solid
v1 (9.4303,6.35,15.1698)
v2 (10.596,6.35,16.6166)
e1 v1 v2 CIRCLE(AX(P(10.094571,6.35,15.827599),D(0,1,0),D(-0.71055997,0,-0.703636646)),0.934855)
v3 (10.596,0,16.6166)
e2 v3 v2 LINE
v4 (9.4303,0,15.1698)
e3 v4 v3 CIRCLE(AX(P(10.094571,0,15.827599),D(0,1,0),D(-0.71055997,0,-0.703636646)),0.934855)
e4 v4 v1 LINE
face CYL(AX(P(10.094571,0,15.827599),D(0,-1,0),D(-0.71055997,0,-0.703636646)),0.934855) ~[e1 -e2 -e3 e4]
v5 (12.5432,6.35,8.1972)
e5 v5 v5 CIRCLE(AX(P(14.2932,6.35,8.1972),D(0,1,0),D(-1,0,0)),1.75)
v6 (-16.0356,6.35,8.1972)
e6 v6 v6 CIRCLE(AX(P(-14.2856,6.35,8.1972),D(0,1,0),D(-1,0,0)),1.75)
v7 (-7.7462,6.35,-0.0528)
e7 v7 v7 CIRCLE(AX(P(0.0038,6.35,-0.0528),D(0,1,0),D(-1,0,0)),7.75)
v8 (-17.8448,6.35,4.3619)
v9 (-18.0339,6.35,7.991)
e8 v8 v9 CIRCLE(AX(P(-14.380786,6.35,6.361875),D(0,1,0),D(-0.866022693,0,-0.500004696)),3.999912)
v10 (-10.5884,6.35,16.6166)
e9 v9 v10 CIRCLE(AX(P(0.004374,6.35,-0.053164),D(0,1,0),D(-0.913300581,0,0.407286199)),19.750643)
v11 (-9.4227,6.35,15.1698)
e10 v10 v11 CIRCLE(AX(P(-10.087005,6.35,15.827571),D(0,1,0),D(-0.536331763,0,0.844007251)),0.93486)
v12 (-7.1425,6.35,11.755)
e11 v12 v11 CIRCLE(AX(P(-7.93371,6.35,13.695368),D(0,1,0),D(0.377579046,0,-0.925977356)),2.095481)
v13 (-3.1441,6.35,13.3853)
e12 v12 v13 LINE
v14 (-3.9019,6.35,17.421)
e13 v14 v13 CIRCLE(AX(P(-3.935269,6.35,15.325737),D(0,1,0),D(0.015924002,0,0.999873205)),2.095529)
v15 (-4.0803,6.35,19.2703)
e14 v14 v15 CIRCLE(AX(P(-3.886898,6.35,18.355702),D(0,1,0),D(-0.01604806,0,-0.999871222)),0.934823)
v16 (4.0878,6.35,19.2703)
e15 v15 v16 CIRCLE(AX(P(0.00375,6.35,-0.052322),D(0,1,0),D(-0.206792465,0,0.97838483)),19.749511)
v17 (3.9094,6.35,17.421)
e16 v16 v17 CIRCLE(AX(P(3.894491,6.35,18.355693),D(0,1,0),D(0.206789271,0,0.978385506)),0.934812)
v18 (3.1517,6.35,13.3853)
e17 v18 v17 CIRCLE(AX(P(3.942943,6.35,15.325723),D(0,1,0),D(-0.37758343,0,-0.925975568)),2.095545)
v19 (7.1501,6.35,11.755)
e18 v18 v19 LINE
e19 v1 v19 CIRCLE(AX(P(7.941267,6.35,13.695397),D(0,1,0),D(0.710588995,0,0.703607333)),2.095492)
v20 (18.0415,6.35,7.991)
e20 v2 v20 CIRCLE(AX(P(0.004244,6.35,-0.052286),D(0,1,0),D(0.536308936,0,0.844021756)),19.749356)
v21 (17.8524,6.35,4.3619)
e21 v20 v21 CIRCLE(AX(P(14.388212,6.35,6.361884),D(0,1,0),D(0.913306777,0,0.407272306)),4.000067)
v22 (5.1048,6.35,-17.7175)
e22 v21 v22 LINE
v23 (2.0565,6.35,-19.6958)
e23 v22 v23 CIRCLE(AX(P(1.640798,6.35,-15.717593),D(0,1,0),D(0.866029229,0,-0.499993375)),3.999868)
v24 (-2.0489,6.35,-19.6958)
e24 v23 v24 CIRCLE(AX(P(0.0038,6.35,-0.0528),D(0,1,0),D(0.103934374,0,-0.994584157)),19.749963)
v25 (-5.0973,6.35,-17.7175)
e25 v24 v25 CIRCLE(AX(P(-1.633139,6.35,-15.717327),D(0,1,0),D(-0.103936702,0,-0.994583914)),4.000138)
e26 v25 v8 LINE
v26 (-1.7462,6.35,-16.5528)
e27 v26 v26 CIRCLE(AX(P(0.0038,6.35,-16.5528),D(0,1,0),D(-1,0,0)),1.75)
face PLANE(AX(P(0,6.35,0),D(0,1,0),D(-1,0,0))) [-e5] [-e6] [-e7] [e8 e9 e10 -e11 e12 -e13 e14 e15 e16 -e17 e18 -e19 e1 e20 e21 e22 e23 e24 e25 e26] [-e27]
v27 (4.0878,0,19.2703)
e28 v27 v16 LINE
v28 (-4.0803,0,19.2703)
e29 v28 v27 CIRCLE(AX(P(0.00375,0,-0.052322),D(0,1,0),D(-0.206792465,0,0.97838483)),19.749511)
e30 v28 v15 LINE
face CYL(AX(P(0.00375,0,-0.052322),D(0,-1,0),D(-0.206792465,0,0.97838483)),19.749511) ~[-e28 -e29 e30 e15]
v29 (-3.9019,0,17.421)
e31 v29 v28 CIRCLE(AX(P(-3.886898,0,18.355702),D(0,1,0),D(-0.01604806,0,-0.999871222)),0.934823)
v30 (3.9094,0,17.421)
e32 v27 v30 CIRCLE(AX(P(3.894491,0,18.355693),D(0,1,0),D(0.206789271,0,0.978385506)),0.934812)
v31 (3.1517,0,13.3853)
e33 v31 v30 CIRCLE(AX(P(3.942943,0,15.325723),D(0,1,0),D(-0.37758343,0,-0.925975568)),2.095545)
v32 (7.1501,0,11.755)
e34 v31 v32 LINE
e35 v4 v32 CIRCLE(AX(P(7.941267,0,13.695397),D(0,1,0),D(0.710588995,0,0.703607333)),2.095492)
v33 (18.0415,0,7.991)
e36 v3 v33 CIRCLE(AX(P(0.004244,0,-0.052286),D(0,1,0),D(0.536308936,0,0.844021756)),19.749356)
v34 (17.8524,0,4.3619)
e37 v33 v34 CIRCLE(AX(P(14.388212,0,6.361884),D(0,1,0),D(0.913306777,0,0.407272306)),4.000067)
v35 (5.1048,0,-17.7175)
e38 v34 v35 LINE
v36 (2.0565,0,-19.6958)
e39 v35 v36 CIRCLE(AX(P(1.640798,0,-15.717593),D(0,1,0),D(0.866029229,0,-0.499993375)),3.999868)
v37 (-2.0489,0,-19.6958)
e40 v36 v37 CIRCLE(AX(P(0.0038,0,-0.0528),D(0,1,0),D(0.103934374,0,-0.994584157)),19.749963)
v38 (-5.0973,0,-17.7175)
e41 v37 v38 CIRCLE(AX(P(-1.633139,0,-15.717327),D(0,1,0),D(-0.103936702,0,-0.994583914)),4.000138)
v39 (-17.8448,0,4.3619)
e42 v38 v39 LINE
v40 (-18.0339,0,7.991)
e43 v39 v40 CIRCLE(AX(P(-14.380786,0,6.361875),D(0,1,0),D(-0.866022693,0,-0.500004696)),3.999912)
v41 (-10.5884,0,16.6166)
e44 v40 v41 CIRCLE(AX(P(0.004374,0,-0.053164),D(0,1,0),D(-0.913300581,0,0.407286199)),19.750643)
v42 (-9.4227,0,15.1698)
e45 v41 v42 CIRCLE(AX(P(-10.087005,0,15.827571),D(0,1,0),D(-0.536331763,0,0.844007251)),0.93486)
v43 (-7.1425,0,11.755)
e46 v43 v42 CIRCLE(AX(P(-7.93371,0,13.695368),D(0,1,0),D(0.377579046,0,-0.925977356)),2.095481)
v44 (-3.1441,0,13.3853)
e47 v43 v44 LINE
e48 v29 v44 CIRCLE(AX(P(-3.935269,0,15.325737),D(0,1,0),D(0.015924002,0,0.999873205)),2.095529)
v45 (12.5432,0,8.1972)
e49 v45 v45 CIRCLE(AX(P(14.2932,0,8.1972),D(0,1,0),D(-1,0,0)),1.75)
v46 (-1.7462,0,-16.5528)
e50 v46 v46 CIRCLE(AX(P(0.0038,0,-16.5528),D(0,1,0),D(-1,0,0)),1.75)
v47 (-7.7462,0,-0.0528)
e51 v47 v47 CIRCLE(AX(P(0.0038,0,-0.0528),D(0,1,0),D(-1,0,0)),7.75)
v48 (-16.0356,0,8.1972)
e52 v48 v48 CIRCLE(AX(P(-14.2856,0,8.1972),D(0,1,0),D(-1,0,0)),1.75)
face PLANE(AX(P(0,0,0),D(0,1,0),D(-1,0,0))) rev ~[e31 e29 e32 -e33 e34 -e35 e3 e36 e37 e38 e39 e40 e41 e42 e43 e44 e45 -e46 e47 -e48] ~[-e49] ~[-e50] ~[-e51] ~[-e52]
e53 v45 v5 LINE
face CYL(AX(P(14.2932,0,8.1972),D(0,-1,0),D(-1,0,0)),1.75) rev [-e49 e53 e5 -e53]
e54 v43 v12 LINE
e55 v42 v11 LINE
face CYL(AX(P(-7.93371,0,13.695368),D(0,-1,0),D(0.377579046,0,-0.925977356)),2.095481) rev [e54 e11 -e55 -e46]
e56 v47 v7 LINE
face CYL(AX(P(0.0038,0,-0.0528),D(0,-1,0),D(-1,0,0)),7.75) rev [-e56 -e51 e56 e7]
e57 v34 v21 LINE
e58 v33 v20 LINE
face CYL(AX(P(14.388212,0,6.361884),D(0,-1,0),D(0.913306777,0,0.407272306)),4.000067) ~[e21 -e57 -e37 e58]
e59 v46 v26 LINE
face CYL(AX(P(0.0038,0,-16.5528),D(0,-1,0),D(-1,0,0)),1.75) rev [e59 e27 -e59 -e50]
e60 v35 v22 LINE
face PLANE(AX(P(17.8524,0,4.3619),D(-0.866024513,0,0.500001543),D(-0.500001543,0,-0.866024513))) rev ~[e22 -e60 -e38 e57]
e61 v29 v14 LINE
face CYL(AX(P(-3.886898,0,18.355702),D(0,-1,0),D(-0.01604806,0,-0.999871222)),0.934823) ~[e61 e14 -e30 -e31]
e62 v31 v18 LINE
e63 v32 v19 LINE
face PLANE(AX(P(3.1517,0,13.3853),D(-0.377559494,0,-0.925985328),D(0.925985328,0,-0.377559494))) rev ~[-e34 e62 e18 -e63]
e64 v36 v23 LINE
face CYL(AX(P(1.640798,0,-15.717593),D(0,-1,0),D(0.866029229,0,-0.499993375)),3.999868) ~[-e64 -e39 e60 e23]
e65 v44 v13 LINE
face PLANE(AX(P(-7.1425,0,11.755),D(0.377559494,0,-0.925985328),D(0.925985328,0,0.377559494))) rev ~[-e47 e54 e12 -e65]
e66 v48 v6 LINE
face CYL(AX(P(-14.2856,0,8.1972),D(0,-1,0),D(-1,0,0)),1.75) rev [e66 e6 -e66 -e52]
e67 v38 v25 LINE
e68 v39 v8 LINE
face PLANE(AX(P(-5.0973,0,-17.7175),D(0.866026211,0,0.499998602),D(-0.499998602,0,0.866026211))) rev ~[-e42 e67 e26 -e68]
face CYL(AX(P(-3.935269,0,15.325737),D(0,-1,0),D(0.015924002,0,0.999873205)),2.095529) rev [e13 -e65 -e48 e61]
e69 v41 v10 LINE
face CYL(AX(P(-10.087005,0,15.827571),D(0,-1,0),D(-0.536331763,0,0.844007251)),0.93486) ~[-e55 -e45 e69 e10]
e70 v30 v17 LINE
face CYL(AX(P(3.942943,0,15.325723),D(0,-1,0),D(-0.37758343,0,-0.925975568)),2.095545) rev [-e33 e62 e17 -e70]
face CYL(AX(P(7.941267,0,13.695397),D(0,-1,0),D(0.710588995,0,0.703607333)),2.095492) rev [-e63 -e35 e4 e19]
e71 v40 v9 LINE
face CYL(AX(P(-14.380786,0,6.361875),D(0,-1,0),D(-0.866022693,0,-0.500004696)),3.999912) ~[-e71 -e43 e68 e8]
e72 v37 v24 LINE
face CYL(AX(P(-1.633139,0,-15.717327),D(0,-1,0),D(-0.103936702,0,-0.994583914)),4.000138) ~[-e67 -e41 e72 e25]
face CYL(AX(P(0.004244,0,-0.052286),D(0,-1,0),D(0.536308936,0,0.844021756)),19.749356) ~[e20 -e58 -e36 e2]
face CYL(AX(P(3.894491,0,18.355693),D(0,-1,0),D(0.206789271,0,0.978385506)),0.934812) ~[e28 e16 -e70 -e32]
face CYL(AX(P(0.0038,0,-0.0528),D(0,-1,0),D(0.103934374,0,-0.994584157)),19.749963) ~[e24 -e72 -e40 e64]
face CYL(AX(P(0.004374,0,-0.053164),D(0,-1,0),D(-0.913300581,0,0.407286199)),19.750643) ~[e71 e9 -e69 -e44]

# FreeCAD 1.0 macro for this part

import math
import FreeCAD as App
import Part
import Sketcher
from FreeCAD import Vector
Q = App.Units.Quantity

doc = App.newDocument("Part")
body = doc.addObject("PartDesign::Body", "Body")

# Sketch on XZ plane
sketch1 = body.newObject("Sketcher::SketchObject", "Sketch")
sketch1.AttachmentSupport = (doc.getObject("XZ_Plane"), [""])
sketch1.MapMode = "FlatFace"
sketch1.addGeometry(Part.ArcOfCircle(Part.Circle(Vector(-3.9353, 15.3257, 0), Vector(0, 0, 1), 2.095566), math.radians(-67.816773), math.radians(89.086758)), False)
sketch1.addGeometry(Part.ArcOfCircle(Part.Circle(Vector(-3.8869, 18.3557, 0), Vector(0, 0, 1), 0.93482), math.radians(101.939795), math.radians(269.0806)), False)
sketch1.addGeometry(Part.ArcOfCircle(Part.Circle(Vector(0.0038, -0.0528, 0), Vector(0, 0, 1), 19.749963), math.radians(78.06598), math.radians(101.934303)), False)
sketch1.addGeometry(Part.ArcOfCircle(Part.Circle(Vector(3.8945, 18.3557, 0), Vector(0, 0, 1), 0.934804), math.radians(-89.086729), math.radians(78.066201)), False)
sketch1.addGeometry(Part.ArcOfCircle(Part.Circle(Vector(3.9429, 15.3257, 0), Vector(0, 0, 1), 2.095507), math.radians(90.915976), math.radians(247.816773)), False)
sketch1.addGeometry(Part.LineSegment(Vector(3.1517, 13.3853, 0), Vector(7.1501, 11.755, 0)), False)
sketch1.addGeometry(Part.ArcOfCircle(Part.Circle(Vector(7.9413, 13.6954, 0), Vector(0, 0, 1), 2.095466), math.radians(-112.183227), math.radians(44.717719)), False)
sketch1.addGeometry(Part.ArcOfCircle(Part.Circle(Vector(10.0946, 15.8276, 0), Vector(0, 0, 1), 0.934877), math.radians(57.564533), math.radians(224.718312)), False)
sketch1.addGeometry(Part.ArcOfCircle(Part.Circle(Vector(0.0038, -0.0528, 0), Vector(0, 0, 1), 19.749963), math.radians(24.034184), math.radians(57.566989)), False)
sketch1.addGeometry(Part.ArcOfCircle(Part.Circle(Vector(14.3883, 6.3619, 0), Vector(0, 0, 1), 3.99998), math.radians(-30.000012), math.radians(24.033899)), False)
sketch1.addGeometry(Part.LineSegment(Vector(17.8524, 4.3619, 0), Vector(5.1048, -17.7175, 0)), False)
sketch1.addGeometry(Part.ArcOfCircle(Part.Circle(Vector(1.6407, -15.7175, 0), Vector(0, 0, 1), 3.999999), math.radians(-84.03328), math.radians(-30.000012)), False)
sketch1.addGeometry(Part.ArcOfCircle(Part.Circle(Vector(0.0038, -0.0528, 0), Vector(0, 0, 1), 19.749963), math.radians(-95.965775), math.radians(-84.034225)), False)
sketch1.addGeometry(Part.ArcOfCircle(Part.Circle(Vector(-1.6332, -15.7175, 0), Vector(0, 0, 1), 3.99996), math.radians(-149.999988), math.radians(-95.965295)), False)
sketch1.addGeometry(Part.LineSegment(Vector(-5.0973, -17.7175, 0), Vector(-17.8448, 4.3619, 0)), False)
sketch1.addGeometry(Part.ArcOfCircle(Part.Circle(Vector(-14.3807, 6.3619, 0), Vector(0, 0, 1), 3.999999), math.radians(155.966101), math.radians(210.000012)), False)
sketch1.addGeometry(Part.ArcOfCircle(Part.Circle(Vector(0.0038, -0.0528, 0), Vector(0, 0, 1), 19.750028), math.radians(122.433011), math.radians(155.965816)), False)
sketch1.addGeometry(Part.ArcOfCircle(Part.Circle(Vector(-10.087, 15.8276, 0), Vector(0, 0, 1), 0.934838), math.radians(-44.718312), math.radians(122.435467)), False)
sketch1.addGeometry(Part.ArcOfCircle(Part.Circle(Vector(-7.9337, 13.6954, 0), Vector(0, 0, 1), 2.095507), math.radians(135.282281), math.radians(292.183227)), False)
sketch1.addGeometry(Part.LineSegment(Vector(-7.1425, 11.755, 0), Vector(-3.1441, 13.3853, 0)), False)
sketch1.addGeometry(Part.Circle(Vector(0.0038, -16.5528, 0), Vector(0, 0, 1), 1.75), False)
sketch1.addGeometry(Part.Circle(Vector(0.0038, -0.0528, 0), Vector(0, 0, 1), 7.75), False)
sketch1.addGeometry(Part.Circle(Vector(14.2932, 8.1972, 0), Vector(0, 0, 1), 1.75), False)
sketch1.addGeometry(Part.Circle(Vector(-14.2856, 8.1972, 0), Vector(0, 0, 1), 1.75), False)
sketch1.addConstraint(Sketcher.Constraint("Tangent", 0, 2, 1, 2))
sketch1.addConstraint(Sketcher.Constraint("Tangent", 1, 1, 2, 2))
sketch1.addConstraint(Sketcher.Constraint("Tangent", 2, 1, 3, 2))
sketch1.addConstraint(Sketcher.Constraint("Tangent", 3, 1, 4, 1))
sketch1.addConstraint(Sketcher.Constraint("Tangent", 4, 2, 5, 1))
sketch1.addConstraint(Sketcher.Constraint("Tangent", 5, 2, 6, 1))
sketch1.addConstraint(Sketcher.Constraint("Tangent", 6, 2, 7, 2))
sketch1.addConstraint(Sketcher.Constraint("Tangent", 7, 1, 8, 2))
sketch1.addConstraint(Sketcher.Constraint("Tangent", 8, 1, 9, 2))
sketch1.addConstraint(Sketcher.Constraint("Tangent", 9, 1, 10, 1))
sketch1.addConstraint(Sketcher.Constraint("Tangent", 10, 2, 11, 2))
sketch1.addConstraint(Sketcher.Constraint("Tangent", 11, 1, 12, 2))
sketch1.addConstraint(Sketcher.Constraint("Tangent", 12, 1, 13, 2))
sketch1.addConstraint(Sketcher.Constraint("Tangent", 13, 1, 14, 1))
sketch1.addConstraint(Sketcher.Constraint("Tangent", 14, 2, 15, 2))
sketch1.addConstraint(Sketcher.Constraint("Tangent", 15, 1, 16, 2))
sketch1.addConstraint(Sketcher.Constraint("Tangent", 16, 1, 17, 2))
sketch1.addConstraint(Sketcher.Constraint("Tangent", 17, 1, 18, 1))
sketch1.addConstraint(Sketcher.Constraint("Tangent", 18, 2, 19, 1))
sketch1.addConstraint(Sketcher.Constraint("Tangent", 19, 2, 0, 1))
sketch1.addConstraint(Sketcher.Constraint("Coincident", 8, 3, 2, 3))
sketch1.addConstraint(Sketcher.Constraint("Coincident", 12, 3, 2, 3))
sketch1.addConstraint(Sketcher.Constraint("Coincident", 16, 3, 2, 3))
sketch1.addConstraint(Sketcher.Constraint("Coincident", 21, 3, 2, 3))
sketch1.addConstraint(Sketcher.Constraint("Equal", 1, 3))
sketch1.addConstraint(Sketcher.Constraint("Equal", 0, 4))
sketch1.addConstraint(Sketcher.Constraint("Equal", 4, 6))
sketch1.addConstraint(Sketcher.Constraint("Equal", 3, 7))
sketch1.addConstraint(Sketcher.Constraint("Equal", 2, 8))
sketch1.addConstraint(Sketcher.Constraint("Equal", 9, 11))
sketch1.addConstraint(Sketcher.Constraint("Equal", 8, 12))
sketch1.addConstraint(Sketcher.Constraint("Equal", 11, 13))
sketch1.addConstraint(Sketcher.Constraint("Equal", 13, 15))
sketch1.addConstraint(Sketcher.Constraint("Equal", 12, 16))
sketch1.addConstraint(Sketcher.Constraint("Equal", 7, 17))
sketch1.addConstraint(Sketcher.Constraint("Equal", 6, 18))
sketch1.addConstraint(Sketcher.Constraint("Equal", 20, 22))
sketch1.addConstraint(Sketcher.Constraint("Equal", 22, 23))
sketch1.addConstraint(Sketcher.Constraint("Horizontal", 1, 3, 3, 3))
sketch1.addConstraint(Sketcher.Constraint("Horizontal", 0, 3, 4, 3))
sketch1.addConstraint(Sketcher.Constraint("Horizontal", 11, 3, 13, 3))
sketch1.addConstraint(Sketcher.Constraint("Horizontal", 9, 3, 15, 3))
sketch1.addConstraint(Sketcher.Constraint("Horizontal", 7, 3, 17, 3))
sketch1.addConstraint(Sketcher.Constraint("Horizontal", 6, 3, 18, 3))
sketch1.addConstraint(Sketcher.Constraint("Horizontal", 22, 3, 23, 3))
sketch1.addConstraint(Sketcher.Constraint("Vertical", 16, 3, 20, 3))
sketch1.addConstraint(Sketcher.Constraint("Radius", 9, Q("4 mm")))
sketch1.addConstraint(Sketcher.Constraint("Diameter", 20, Q("3.5 mm")))
sketch1.addConstraint(Sketcher.Constraint("Diameter", 21, Q("15.5 mm")))
sketch1.addConstraint(Sketcher.Constraint("Angle", 10, Q("-120 deg")))
sketch1.addConstraint(Sketcher.Constraint("Radius", 2, Q("19.75 mm")))
sketch1.addConstraint(Sketcher.Constraint("Radius", 0, Q("2.0956 mm")))
sketch1.addConstraint(Sketcher.Constraint("Radius", 1, Q("0.9348 mm")))
sketch1.addConstraint(Sketcher.Constraint("DistanceX", 3, 3, 7, 3, Q("6.2 mm")))
sketch1.addConstraint(Sketcher.Constraint("DistanceY", 20, 3, 2, 3, Q("16.5 mm")))
sketch1.addConstraint(Sketcher.Constraint("DistanceX", -1, 1, 5, 2, Q("7.15 mm")))
sketch1.addConstraint(Sketcher.Constraint("DistanceY", 0, 3, 1, 3, Q("3.03 mm")))
sketch1.addConstraint(Sketcher.Constraint("DistanceX", 0, 3, 7, 3, Q("14.03 mm")))
sketch1.addConstraint(Sketcher.Constraint("DistanceY", 4, 2, 6, 3, Q("0.31 mm")))
sketch1.addConstraint(Sketcher.Constraint("Distance", 14, Q("25.495 mm")))
sketch1.addConstraint(Sketcher.Constraint("DistanceY", -1, 1, 9, 3, Q("6.362 mm")))
sketch1.addConstraint(Sketcher.Constraint("DistanceX", 22, 3, 9, 3, Q("0.095 mm")))
sketch1.addConstraint(Sketcher.Constraint("DistanceX", 15, 3, 23, 3, Q("0.095 mm")))
sketch1.addConstraint(Sketcher.Constraint("DistanceY", -1, 1, 22, 3, Q("8.1972 mm")))
pad1 = body.newObject("PartDesign::Pad", "Pad")
pad1.Profile = sketch1
pad1.Length = 6.35
pad1.Reversed = True

doc.recompute()
